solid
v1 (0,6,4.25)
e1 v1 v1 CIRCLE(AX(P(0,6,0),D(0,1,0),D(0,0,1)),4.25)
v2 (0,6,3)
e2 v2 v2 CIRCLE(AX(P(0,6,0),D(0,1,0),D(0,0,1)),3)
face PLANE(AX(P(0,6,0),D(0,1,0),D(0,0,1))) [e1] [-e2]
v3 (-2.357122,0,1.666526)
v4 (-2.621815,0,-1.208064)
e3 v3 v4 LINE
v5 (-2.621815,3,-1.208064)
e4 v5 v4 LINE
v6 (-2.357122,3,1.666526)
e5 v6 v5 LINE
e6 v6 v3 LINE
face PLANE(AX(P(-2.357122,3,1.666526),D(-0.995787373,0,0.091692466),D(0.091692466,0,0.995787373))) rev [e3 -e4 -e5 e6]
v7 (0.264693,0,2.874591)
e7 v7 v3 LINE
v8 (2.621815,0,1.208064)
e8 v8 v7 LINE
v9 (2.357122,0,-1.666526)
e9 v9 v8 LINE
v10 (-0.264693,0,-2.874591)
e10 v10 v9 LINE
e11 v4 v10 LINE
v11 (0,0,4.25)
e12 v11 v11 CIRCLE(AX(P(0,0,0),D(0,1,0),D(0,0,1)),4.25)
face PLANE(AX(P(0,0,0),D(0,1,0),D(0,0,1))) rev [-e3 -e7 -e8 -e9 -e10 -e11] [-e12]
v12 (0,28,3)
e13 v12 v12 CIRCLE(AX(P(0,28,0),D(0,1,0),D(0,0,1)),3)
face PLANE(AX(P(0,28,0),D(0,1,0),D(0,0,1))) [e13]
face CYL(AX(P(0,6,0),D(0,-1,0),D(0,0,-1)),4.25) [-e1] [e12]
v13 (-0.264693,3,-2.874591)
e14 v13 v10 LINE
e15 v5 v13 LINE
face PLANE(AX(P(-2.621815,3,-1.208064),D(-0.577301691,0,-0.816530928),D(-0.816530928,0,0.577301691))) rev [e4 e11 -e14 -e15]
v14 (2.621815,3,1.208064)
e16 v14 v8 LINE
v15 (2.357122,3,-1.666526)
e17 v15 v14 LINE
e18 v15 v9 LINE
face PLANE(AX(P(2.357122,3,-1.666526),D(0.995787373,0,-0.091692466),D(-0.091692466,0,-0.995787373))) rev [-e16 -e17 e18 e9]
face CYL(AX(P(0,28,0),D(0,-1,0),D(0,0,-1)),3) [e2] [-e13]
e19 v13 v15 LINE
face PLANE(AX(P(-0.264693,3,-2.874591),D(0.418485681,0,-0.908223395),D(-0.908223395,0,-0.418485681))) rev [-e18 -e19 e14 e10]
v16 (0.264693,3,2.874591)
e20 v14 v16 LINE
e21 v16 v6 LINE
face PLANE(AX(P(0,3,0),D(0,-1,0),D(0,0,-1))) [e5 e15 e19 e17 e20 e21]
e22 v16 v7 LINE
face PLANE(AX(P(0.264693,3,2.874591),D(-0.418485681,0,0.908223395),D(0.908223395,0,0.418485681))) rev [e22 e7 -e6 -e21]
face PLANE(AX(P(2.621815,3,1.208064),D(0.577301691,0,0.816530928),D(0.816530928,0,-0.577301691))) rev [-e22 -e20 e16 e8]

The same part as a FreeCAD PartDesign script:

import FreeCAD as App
import Part
import Sketcher
Q = App.Units.Quantity

doc = App.newDocument("Part")
body = doc.addObject("PartDesign::Body", "Body")

sketch1 = doc.addObject("Sketcher::SketchObject", "Sketch")
body.addObject(sketch1)
sketch1.AttachmentSupport = (doc.XZ_Plane, [""])
sketch1.MapMode = "FlatFace"
sketch1.addGeometry(Part.Circle(App.Vector(0, 0, 0), App.Vector(0, 0, 1), 4.25), False)
sketch1.addConstraint([
    Sketcher.Constraint("Coincident", 0, 3, -1, 1),
    Sketcher.Constraint("Diameter", 0, Q("8.5 mm")),
])
pad1 = doc.addObject("PartDesign::Pad", "Pad")
body.addObject(pad1)
pad1.Profile = sketch1
pad1.Length = 6
pad1.Reversed = True

sketch2 = doc.addObject("Sketcher::SketchObject", "Sketch001")
body.addObject(sketch2)
sketch2.AttachmentSupport = (doc.XZ_Plane, [""])
sketch2.MapMode = "FlatFace"
sketch2.AttachmentOffset = App.Placement(App.Vector(0, 0, -6), App.Rotation())
sketch2.addGeometry(Part.Circle(App.Vector(0, 0, 0), App.Vector(0, 0, 1), 3), False)
sketch2.addConstraint([
    Sketcher.Constraint("Coincident", 0, 3, -1, 1),
    Sketcher.Constraint("Diameter", 0, Q("6 mm")),
])
pad2 = doc.addObject("PartDesign::Pad", "Pad001")
body.addObject(pad2)
pad2.Profile = sketch2
pad2.Length = 22
pad2.Reversed = True

sketch3 = doc.addObject("Sketcher::SketchObject", "Sketch002")
body.addObject(sketch3)
sketch3.AttachmentSupport = (doc.XZ_Plane, [""])
sketch3.MapMode = "FlatFace"
sketch3.addGeometry([
    Part.LineSegment(App.Vector(2.357122, -1.666526, 0), App.Vector(2.621815, 1.208064, 0)),
    Part.LineSegment(App.Vector(2.621815, 1.208064, 0), App.Vector(0.264693, 2.874591, 0)),
    Part.LineSegment(App.Vector(0.264693, 2.874591, 0), App.Vector(-2.357122, 1.666526, 0)),
    Part.LineSegment(App.Vector(-2.357122, 1.666526, 0), App.Vector(-2.621815, -1.208064, 0)),
    Part.LineSegment(App.Vector(-2.621815, -1.208064, 0), App.Vector(-0.264693, -2.874591, 0)),
    Part.LineSegment(App.Vector(-0.264693, -2.874591, 0), App.Vector(2.357122, -1.666526, 0)),
], False)
sketch3.addConstraint([
    Sketcher.Constraint("Coincident", 0, 2, 1, 1),
    Sketcher.Constraint("Coincident", 1, 2, 2, 1),
    Sketcher.Constraint("Coincident", 2, 2, 3, 1),
    Sketcher.Constraint("Coincident", 3, 2, 4, 1),
    Sketcher.Constraint("Coincident", 4, 2, 5, 1),
    Sketcher.Constraint("Coincident", 5, 2, 0, 1),
    Sketcher.Constraint("Symmetric", 0, 2, 3, 2, -1, 1),
    Sketcher.Constraint("Symmetric", 1, 2, 4, 2, -1, 1),
    Sketcher.Constraint("Symmetric", 2, 2, 5, 2, -1, 1),
    Sketcher.Constraint("Equal", 0, 1),
    Sketcher.Constraint("Equal", 1, 2),
    Sketcher.Constraint("Distance", 0, Q("2.886751 mm")),
    Sketcher.Constraint("DistanceY", -1, 1, 1, 2, Q("2.874591 mm")),
    Sketcher.Constraint("DistanceX", 2, 2, -1, 1, Q("2.357122 mm")),
    Sketcher.Constraint("DistanceX", 1, 2, 0, 2, Q("2.357122 mm")),
])
pocket1 = doc.addObject("PartDesign::Pocket", "Pocket")
body.addObject(pocket1)
pocket1.Profile = sketch3
pocket1.Length = 3

doc.recompute()
